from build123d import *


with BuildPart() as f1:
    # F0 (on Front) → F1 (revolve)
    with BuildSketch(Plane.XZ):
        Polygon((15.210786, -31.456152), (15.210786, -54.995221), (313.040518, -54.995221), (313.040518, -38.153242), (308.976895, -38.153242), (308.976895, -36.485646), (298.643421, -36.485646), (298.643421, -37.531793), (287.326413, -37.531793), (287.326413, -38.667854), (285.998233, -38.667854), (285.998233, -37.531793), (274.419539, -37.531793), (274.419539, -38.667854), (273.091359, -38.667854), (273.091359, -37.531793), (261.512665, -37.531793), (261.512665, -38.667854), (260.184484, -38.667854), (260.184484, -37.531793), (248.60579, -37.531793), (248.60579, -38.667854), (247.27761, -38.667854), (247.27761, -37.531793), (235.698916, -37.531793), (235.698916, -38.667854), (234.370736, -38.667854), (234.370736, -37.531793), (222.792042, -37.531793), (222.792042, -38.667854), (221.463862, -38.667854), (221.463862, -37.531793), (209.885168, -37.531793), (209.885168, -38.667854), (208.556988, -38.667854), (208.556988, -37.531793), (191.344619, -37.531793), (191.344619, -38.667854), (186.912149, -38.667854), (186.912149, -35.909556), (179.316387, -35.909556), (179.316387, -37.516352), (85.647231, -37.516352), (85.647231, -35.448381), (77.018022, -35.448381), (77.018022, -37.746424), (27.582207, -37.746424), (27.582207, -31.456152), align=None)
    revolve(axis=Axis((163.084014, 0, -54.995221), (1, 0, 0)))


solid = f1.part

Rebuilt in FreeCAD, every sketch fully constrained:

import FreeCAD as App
import Part
import Sketcher


def add_polygon(sketch, points):
    """Adds a closed chain of lines whose ends are joined by coincident constraints."""
    first, n = sketch.GeometryCount, len(points)
    for a, b in zip(points, points[1:] + points[:1]):
        sketch.addGeometry(Part.LineSegment(App.Vector(*a, 0), App.Vector(*b, 0)), False)
    for i in range(n):
        sketch.addConstraint(Sketcher.Constraint("Coincident", first + i, 2, first + (i + 1) % n, 1))

doc = App.newDocument("Part")
body = doc.addObject("PartDesign::Body", "Body")

# Sketch on XZ plane
sketch1 = body.newObject("Sketcher::SketchObject", "Sketch")
sketch1.AttachmentSupport = (doc.getObject("XZ_Plane"), [""])
sketch1.MapMode = "FlatFace"
add_polygon(sketch1, [(15.2, -31.5), (15.2, -55), (313, -55), (313, -38.2), (309, -38.2), (309, -36.5), (298.6, -36.5), (298.6, -37.5), (287.3, -37.5), (287.3, -38.7), (286, -38.7), (286, -37.5), (274.4, -37.5), (274.4, -38.7), (273.1, -38.7), (273.1, -37.5), (261.5, -37.5), (261.5, -38.7), (260.2, -38.7), (260.2, -37.5), (248.6, -37.5), (248.6, -38.7), (247.3, -38.7), (247.3, -37.5), (235.7, -37.5), (235.7, -38.7), (234.4, -38.7), (234.4, -37.5), (222.8, -37.5), (222.8, -38.7), (221.5, -38.7), (221.5, -37.5), (209.9, -37.5), (209.9, -38.7), (208.6, -38.7), (208.6, -37.5), (191.3, -37.5), (191.3, -38.7), (186.9, -38.7), (186.9, -35.9), (179.3, -35.9), (179.3, -37.5), (85.6, -37.5), (85.6, -35.4), (77, -35.4), (77, -37.7), (27.6, -37.7), (27.6, -31.5)])  # lines 0-47
sketch1.addGeometry(Part.LineSegment(App.Vector(15.2, -55, 0), App.Vector(313, -55, 0)), True)  # axis
sketch1.addConstraint([
    Sketcher.Constraint("Vertical", 0),
    Sketcher.Constraint("Horizontal", 1),
    Sketcher.Constraint("Vertical", 2),
    Sketcher.Constraint("Horizontal", 3),
    Sketcher.Constraint("Vertical", 4),
    Sketcher.Constraint("Horizontal", 5),
    Sketcher.Constraint("Vertical", 6),
    Sketcher.Constraint("Horizontal", 7),
    Sketcher.Constraint("Vertical", 8),
    Sketcher.Constraint("Horizontal", 9),
    Sketcher.Constraint("Vertical", 10),
    Sketcher.Constraint("Horizontal", 11),
    Sketcher.Constraint("Vertical", 12),
    Sketcher.Constraint("Horizontal", 13),
    Sketcher.Constraint("Vertical", 14),
    Sketcher.Constraint("Horizontal", 15),
    Sketcher.Constraint("Vertical", 16),
    Sketcher.Constraint("Horizontal", 17),
    Sketcher.Constraint("Vertical", 18),
    Sketcher.Constraint("Horizontal", 19),
    Sketcher.Constraint("Vertical", 20),
    Sketcher.Constraint("Horizontal", 21),
    Sketcher.Constraint("Vertical", 22),
    Sketcher.Constraint("Horizontal", 23),
    Sketcher.Constraint("Vertical", 24),
    Sketcher.Constraint("Horizontal", 25),
    Sketcher.Constraint("Vertical", 26),
    Sketcher.Constraint("Horizontal", 27),
    Sketcher.Constraint("Vertical", 28),
    Sketcher.Constraint("Horizontal", 29),
    Sketcher.Constraint("Vertical", 30),
    Sketcher.Constraint("Horizontal", 31),
    Sketcher.Constraint("Vertical", 32),
    Sketcher.Constraint("Horizontal", 33),
    Sketcher.Constraint("Vertical", 34),
    Sketcher.Constraint("Horizontal", 35),
    Sketcher.Constraint("Vertical", 36),
    Sketcher.Constraint("Horizontal", 37),
    Sketcher.Constraint("Vertical", 38),
    Sketcher.Constraint("Horizontal", 39),
    Sketcher.Constraint("Vertical", 40),
    Sketcher.Constraint("Horizontal", 41),
    Sketcher.Constraint("Vertical", 42),
    Sketcher.Constraint("Horizontal", 43),
    Sketcher.Constraint("Vertical", 44),
    Sketcher.Constraint("Horizontal", 45),
    Sketcher.Constraint("Vertical", 46),
    Sketcher.Constraint("Horizontal", 47),
    Sketcher.Constraint("Horizontal", 48),
    Sketcher.Constraint("Coincident", 48, 1, 0, 2),
    Sketcher.Constraint("Horizontal", 7, 2, 10, 2),
    Sketcher.Constraint("Horizontal", 9, 2, 12, 2),
    Sketcher.Constraint("Horizontal", 11, 2, 14, 2),
    Sketcher.Constraint("Horizontal", 13, 2, 16, 2),
    Sketcher.Constraint("Horizontal", 15, 2, 18, 2),
    Sketcher.Constraint("Horizontal", 17, 2, 20, 2),
    Sketcher.Constraint("Horizontal", 19, 2, 22, 2),
    Sketcher.Constraint("Horizontal", 21, 2, 24, 2),
    Sketcher.Constraint("Horizontal", 23, 2, 26, 2),
    Sketcher.Constraint("Horizontal", 25, 2, 28, 2),
    Sketcher.Constraint("Horizontal", 27, 2, 30, 2),
    Sketcher.Constraint("Horizontal", 29, 2, 32, 2),
    Sketcher.Constraint("Horizontal", 31, 2, 34, 2),
    Sketcher.Constraint("Horizontal", 33, 2, 36, 2),
    Sketcher.Constraint("Vertical", 2, 2, 48, 2),
    Sketcher.Constraint("Equal", 9, 13),
    Sketcher.Constraint("Equal", 11, 15),
    Sketcher.Constraint("Equal", 13, 17),
    Sketcher.Constraint("Equal", 15, 19),
    Sketcher.Constraint("Equal", 17, 21),
    Sketcher.Constraint("Equal", 19, 23),
    Sketcher.Constraint("Equal", 21, 25),
    Sketcher.Constraint("Equal", 23, 27),
    Sketcher.Constraint("Equal", 25, 29),
    Sketcher.Constraint("Equal", 27, 31),
    Sketcher.Constraint("Equal", 29, 33),
    Sketcher.Constraint("DistanceX", 9, 2, 9, 1, 1.32818),
    Sketcher.Constraint("DistanceX", 35, 2, 35, 1, 17.212369),
    Sketcher.Constraint("DistanceX", 37, 2, 37, 1, 4.43247),
    Sketcher.Constraint("DistanceX", 43, 2, 43, 1, 8.629209),
    Sketcher.Constraint("DistanceX", 47, 2, 47, 1, 12.371421),
    Sketcher.Constraint("DistanceY", 0, 2, 0, 1, 23.539069),
    Sketcher.Constraint("DistanceY", 2, 1, 2, 2, 16.841979),
    Sketcher.Constraint("DistanceY", 8, 2, 8, 1, 1.136061),
    Sketcher.Constraint("DistanceY", 42, 1, 42, 2, 2.067971),
    Sketcher.Constraint("DistanceY", 46, 1, 46, 2, 6.290272),
    Sketcher.Constraint("DistanceX", 39, 2, 34, 2, 29.240601),
    Sketcher.Constraint("DistanceX", 1, 1, 1, 2, 297.829732),
    Sketcher.Constraint("DistanceX", 3, 2, 3, 1, 4.063623),
    Sketcher.Constraint("DistanceX", 5, 2, 5, 1, 10.333474),
    Sketcher.Constraint("DistanceX", 7, 2, 7, 1, 11.317008),
    Sketcher.Constraint("DistanceX", 11, 2, 11, 1, 11.578694),
    Sketcher.Constraint("DistanceX", 41, 2, 41, 1, 93.669156),
    Sketcher.Constraint("DistanceY", 4, 1, 4, 2, 1.667596),
    Sketcher.Constraint("DistanceY", 6, 2, 6, 1, 1.046147),
    Sketcher.Constraint("DistanceY", 38, 1, 38, 2, 2.758298),
    Sketcher.Constraint("DistanceY", 40, 2, 40, 1, 1.606796),
    Sketcher.Constraint("DistanceY", 0, 2, -1, 1, 54.995221),
    Sketcher.Constraint("DistanceX", -1, 1, 1, 2, 313.040518),
])
revolution = body.newObject("PartDesign::Revolution", "Revolution")
revolution.Profile = sketch1
revolution.ReferenceAxis = (sketch1, ["Axis0"])
revolution.Angle = 360

doc.recompute()
